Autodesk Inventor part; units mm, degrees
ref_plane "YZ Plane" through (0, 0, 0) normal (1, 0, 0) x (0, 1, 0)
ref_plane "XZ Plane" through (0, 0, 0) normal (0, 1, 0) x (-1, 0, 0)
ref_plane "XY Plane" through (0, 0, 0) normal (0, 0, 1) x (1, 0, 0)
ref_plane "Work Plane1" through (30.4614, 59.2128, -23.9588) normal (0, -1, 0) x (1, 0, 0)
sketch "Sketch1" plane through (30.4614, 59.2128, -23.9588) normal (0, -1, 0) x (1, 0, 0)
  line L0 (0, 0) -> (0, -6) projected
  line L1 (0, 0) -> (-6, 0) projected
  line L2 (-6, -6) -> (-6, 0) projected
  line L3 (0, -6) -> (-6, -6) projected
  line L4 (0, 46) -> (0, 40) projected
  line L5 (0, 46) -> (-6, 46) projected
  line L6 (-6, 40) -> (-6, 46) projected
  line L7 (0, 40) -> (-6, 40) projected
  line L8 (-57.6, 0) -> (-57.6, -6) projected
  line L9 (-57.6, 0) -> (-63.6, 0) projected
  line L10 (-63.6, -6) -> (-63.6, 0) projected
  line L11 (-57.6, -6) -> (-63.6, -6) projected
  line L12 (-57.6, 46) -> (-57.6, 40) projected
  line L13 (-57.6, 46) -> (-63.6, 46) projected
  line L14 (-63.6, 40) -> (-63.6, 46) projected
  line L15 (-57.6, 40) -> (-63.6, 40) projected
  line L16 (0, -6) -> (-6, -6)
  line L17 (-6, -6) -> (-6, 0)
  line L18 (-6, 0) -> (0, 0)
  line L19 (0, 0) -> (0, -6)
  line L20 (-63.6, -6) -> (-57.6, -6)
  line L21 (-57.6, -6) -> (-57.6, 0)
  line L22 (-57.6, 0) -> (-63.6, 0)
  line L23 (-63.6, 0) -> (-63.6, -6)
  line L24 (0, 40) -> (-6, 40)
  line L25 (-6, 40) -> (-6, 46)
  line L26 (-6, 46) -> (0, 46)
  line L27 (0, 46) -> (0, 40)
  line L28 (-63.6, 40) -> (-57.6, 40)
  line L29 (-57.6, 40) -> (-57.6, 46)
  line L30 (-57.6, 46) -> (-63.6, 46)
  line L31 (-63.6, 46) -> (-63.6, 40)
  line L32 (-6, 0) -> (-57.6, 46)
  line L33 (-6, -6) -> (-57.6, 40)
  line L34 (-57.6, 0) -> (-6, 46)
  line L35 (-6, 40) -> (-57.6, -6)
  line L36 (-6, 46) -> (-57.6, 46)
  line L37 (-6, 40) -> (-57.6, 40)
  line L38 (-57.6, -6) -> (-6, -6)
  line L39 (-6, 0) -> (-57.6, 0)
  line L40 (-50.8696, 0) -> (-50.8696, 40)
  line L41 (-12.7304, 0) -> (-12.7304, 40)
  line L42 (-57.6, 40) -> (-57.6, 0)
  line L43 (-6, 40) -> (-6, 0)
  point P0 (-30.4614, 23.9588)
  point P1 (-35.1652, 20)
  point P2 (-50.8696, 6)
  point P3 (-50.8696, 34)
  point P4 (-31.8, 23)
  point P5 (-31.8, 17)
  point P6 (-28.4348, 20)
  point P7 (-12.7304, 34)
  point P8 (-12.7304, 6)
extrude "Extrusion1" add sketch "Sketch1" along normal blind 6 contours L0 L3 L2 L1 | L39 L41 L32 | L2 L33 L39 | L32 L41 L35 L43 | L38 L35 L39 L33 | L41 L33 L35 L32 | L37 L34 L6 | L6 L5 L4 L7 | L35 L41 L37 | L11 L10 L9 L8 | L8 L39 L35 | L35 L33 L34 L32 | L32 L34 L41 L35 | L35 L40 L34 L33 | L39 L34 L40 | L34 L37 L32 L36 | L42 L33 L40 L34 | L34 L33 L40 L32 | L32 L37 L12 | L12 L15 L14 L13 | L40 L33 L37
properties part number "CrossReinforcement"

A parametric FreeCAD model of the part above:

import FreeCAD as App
import Part
import Sketcher


def add_polygon(sketch, points):
    """Adds a closed chain of lines whose ends are joined by coincident constraints."""
    first, n = sketch.GeometryCount, len(points)
    for a, b in zip(points, points[1:] + points[:1]):
        sketch.addGeometry(Part.LineSegment(App.Vector(*a, 0), App.Vector(*b, 0)), False)
    for i in range(n):
        sketch.addConstraint(Sketcher.Constraint("Coincident", first + i, 2, first + (i + 1) % n, 1))

doc = App.newDocument("Part")
params = doc.addObject("Spreadsheet::Sheet", "Params")
for row, (alias, value) in enumerate([
    ("sketch1_width", "6 mm"),
    ("sketch1_height", "40 mm"),
    ("sketch1_height2", "28 mm"),
    ("sketch1_width2", "63.6 mm"),
    ("pad1_length", "6 mm"),
], start=1):
    params.set(f"A{row}", alias)
    params.set(f"B{row}", "=" + value)
    params.setAlias(f"B{row}", alias)

body = doc.addObject("PartDesign::Body", "Body")

# Sketch on XZ plane
sketch1 = body.newObject("Sketcher::SketchObject", "Sketch")
sketch1.AttachmentSupport = (doc.getObject("XZ_Plane"), [""])
sketch1.MapMode = "FlatFace"
sketch1.AttachmentOffset = App.Placement(App.Vector(0, 0, -59.2128), App.Rotation())
add_polygon(sketch1, [(30, -30), (30, -24), (24, -24), (24, 16), (30, 16), (30, 22), (-33, 22), (-33, 16), (-27, 16), (-27, -24), (-33, -24), (-33, -30)])  # lines 0-11
add_polygon(sketch1, [(18, -24), (-20, -24), (-1, -7)])  # lines 12-14
add_polygon(sketch1, [(18, 10), (18, -18), (2, -4)])  # lines 15-17
add_polygon(sketch1, [(18, 16), (-1, -1), (-20, 16)])  # lines 18-20
add_polygon(sketch1, [(-5, -4), (-20, -18), (-20, 10)])  # lines 21-23
sketch1.addConstraint([
    Sketcher.Constraint("Vertical", 0),
    Sketcher.Constraint("Horizontal", 1),
    Sketcher.Constraint("Vertical", 2),
    Sketcher.Constraint("Horizontal", 3),
    Sketcher.Constraint("Vertical", 4),
    Sketcher.Constraint("Horizontal", 5),
    Sketcher.Constraint("Vertical", 6),
    Sketcher.Constraint("Horizontal", 7),
    Sketcher.Constraint("Vertical", 8),
    Sketcher.Constraint("Horizontal", 9),
    Sketcher.Constraint("Vertical", 10),
    Sketcher.Constraint("Horizontal", 11),
    Sketcher.Constraint("Horizontal", 12),
    Sketcher.Constraint("Vertical", 15),
    Sketcher.Constraint("Horizontal", 20),
    Sketcher.Constraint("Vertical", 22),
    Sketcher.Constraint("Parallel", 14, 16),
    Sketcher.Constraint("Parallel", 13, 17),
    Sketcher.Constraint("Parallel", 17, 18),
    Sketcher.Constraint("Parallel", 16, 19),
    Sketcher.Constraint("Parallel", 18, 21),
    Sketcher.Constraint("Parallel", 19, 23),
    Sketcher.Constraint("Horizontal", 3, 2, 6, 2),
    Sketcher.Constraint("Horizontal", 1, 2, 8, 2),
    Sketcher.Constraint("Horizontal", 9, 2, 12, 2),
    Sketcher.Constraint("Horizontal", 7, 2, 19, 2),
    Sketcher.Constraint("Horizontal", 15, 2, 21, 2),
    Sketcher.Constraint("Horizontal", 17, 2, 22, 2),
    Sketcher.Constraint("Horizontal", 16, 2, 23, 2),
    Sketcher.Constraint("Vertical", 0, 2, 3, 2),
    Sketcher.Constraint("Vertical", 6, 2, 9, 2),
    Sketcher.Constraint("Vertical", 14, 2, 15, 2),
    Sketcher.Constraint("Vertical", 13, 2, 18, 2),
    Sketcher.Constraint("Vertical", 12, 2, 19, 2),
    Sketcher.Constraint("Vertical", 19, 2, 21, 2),
    Sketcher.Constraint("Equal", 3, 7),
    Sketcher.Constraint("Equal", 9, 0),
    Sketcher.Constraint("Equal", 0, 4),
    Sketcher.Constraint("DistanceX", 1, 2, 1, 1, 6.0),
    Sketcher.Constraint("DistanceY", 2, 1, 2, 2, 40.0),
    Sketcher.Constraint("DistanceY", 15, 2, 15, 1, 28.0),
    Sketcher.Constraint("DistanceX", 5, 2, 5, 1, 63.6),
    Sketcher.Constraint("DistanceY", 12, 2, 13, 2, 17.0),
    Sketcher.Constraint("DistanceY", 14, 2, 15, 2, 6.0),
    Sketcher.Constraint("DistanceX", 13, 2, 1, 2, 25.8),
    Sketcher.Constraint("Distance", 13, 25.547),
    Sketcher.Constraint("DistanceX", -1, 1, 14, 2, 17.731),
    Sketcher.Constraint("DistanceY", 0, 2, -1, 1, 23.9588),
])
sketch1.setExpression("Constraints[62]", "Params.sketch1_width")
sketch1.setExpression("Constraints[63]", "Params.sketch1_height")
sketch1.setExpression("Constraints[64]", "Params.sketch1_height2")
sketch1.setExpression("Constraints[65]", "Params.sketch1_width2")
pad1 = body.newObject("PartDesign::Pad", "Pad")
pad1.Profile = sketch1
pad1.setExpression("Length", "Params.pad1_length")

doc.recompute()
